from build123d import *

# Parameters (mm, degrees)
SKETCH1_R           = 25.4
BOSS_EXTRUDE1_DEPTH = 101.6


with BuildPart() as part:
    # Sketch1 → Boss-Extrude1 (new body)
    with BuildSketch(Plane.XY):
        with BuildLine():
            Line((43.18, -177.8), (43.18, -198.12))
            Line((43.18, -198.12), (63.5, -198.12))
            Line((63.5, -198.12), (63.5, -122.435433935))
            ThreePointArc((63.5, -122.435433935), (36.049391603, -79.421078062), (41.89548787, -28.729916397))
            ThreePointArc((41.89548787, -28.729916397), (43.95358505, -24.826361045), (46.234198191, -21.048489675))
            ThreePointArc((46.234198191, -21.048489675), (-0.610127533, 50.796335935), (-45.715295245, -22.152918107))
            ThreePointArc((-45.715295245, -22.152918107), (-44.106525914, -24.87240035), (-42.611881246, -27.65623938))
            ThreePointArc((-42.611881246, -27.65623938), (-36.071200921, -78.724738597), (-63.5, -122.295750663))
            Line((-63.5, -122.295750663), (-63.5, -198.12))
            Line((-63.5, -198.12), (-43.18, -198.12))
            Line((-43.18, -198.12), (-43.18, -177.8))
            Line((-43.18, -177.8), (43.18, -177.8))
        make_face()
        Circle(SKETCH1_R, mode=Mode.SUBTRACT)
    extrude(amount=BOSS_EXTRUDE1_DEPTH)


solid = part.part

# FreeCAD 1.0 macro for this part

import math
import FreeCAD as App
import Part
import Sketcher

V = App.Vector
Q = App.Units.Quantity

doc = App.newDocument("Part")
params = doc.addObject("Spreadsheet::Sheet", "Params")
for row, (alias, value) in enumerate([
    ("sketch1_diameter", "2 in"),
    ("sketch1_radius", "3 in"),
    ("sketch1_radius2", "2 in"),
    ("sketch1_width", "0.8 in"),
    ("sketch1_width2", "3.4 in"),
    ("pad1_length", "4 in"),
], start=1):
    params.set(f"A{row}", alias)
    params.set(f"B{row}", "=" + value)
    params.setAlias(f"B{row}", alias)

body = doc.addObject("PartDesign::Body", "Body")

sketch1 = body.newObject("Sketcher::SketchObject", "Sketch")
sketch1.AttachmentSupport = (doc.getObject("XY_Plane"), [""])
sketch1.MapMode = "FlatFace"
sketch1.addGeometry([
    Part.LineSegment(V(43, -178, 0), V(43, -198, 0)),
    Part.LineSegment(V(43, -198, 0), V(64, -198, 0)),
    Part.LineSegment(V(64, -198, 0), V(64, -122, 0)),
    Part.ArcOfCircle(Part.Circle(V(110, -62, 0), V(0, 0, 1), 76), math.radians(154), math.radians(232)),
    Part.ArcOfCircle(Part.Circle(V(110, -62, 0), V(0, 0, 1), 76), math.radians(147.22), math.radians(153.86)),
    Part.ArcOfCircle(Part.Circle(V(0, 0, 0), V(0, 0, 1), 51), math.radians(-24), math.radians(206)),
    Part.ArcOfCircle(Part.Circle(V(-110, -62, 0), V(0, 0, 1), 76), math.radians(27.04), math.radians(31.8)),
    Part.ArcOfCircle(Part.Circle(V(-110, -62, 0), V(0, 0, 1), 76), math.radians(-52), math.radians(27)),
    Part.LineSegment(V(-64, -122, 0), V(-64, -198, 0)),
    Part.LineSegment(V(-64, -198, 0), V(-43, -198, 0)),
    Part.LineSegment(V(-43, -198, 0), V(-43, -178, 0)),
    Part.LineSegment(V(-43, -178, 0), V(43, -178, 0)),
    Part.Circle(V(0, 0, 0), V(0, 0, 1), 25),
], False)
sketch1.addConstraint([
    Sketcher.Constraint("Coincident", 0, 2, 1, 1),
    Sketcher.Constraint("Coincident", 1, 2, 2, 1),
    Sketcher.Constraint("Coincident", 2, 2, 3, 2),
    Sketcher.Constraint("Tangent", 3, 1, 4, 2),
    Sketcher.Constraint("Coincident", 4, 1, 5, 1),
    Sketcher.Constraint("Coincident", 5, 2, 6, 2),
    Sketcher.Constraint("Tangent", 6, 1, 7, 2),
    Sketcher.Constraint("Coincident", 7, 1, 8, 1),
    Sketcher.Constraint("Coincident", 8, 2, 9, 1),
    Sketcher.Constraint("Coincident", 9, 2, 10, 1),
    Sketcher.Constraint("Coincident", 10, 2, 11, 1),
    Sketcher.Constraint("Coincident", 11, 2, 0, 1),
    Sketcher.Constraint("Vertical", 0),
    Sketcher.Constraint("Horizontal", 1),
    Sketcher.Constraint("Vertical", 2),
    Sketcher.Constraint("Vertical", 8),
    Sketcher.Constraint("Horizontal", 9),
    Sketcher.Constraint("Vertical", 10),
    Sketcher.Constraint("Horizontal", 11),
    Sketcher.Constraint("Coincident", 5, 3, -1, 1),
    Sketcher.Constraint("Coincident", 12, 3, -1, 1),
    Sketcher.Constraint("Equal", 3, 4),
    Sketcher.Constraint("Equal", 4, 6),
    Sketcher.Constraint("Equal", 6, 7),
    Sketcher.Constraint("Symmetric", 1, 2, 8, 2, -2),
    Sketcher.Constraint("Horizontal", 4, 3, 6, 3),
    Sketcher.Constraint("Equal", 1, 9),
    Sketcher.Constraint("Equal", 9, 0),
    Sketcher.Constraint("Diameter", 12, Q("2 in")),
    Sketcher.Constraint("Radius", 3, Q("3 in")),
    Sketcher.Constraint("Radius", 5, Q("2 in")),
    Sketcher.Constraint("DistanceX", 1, 1, 1, 2, Q("0.8 in")),
    Sketcher.Constraint("DistanceX", 11, 1, 11, 2, Q("3.4 in")),
    Sketcher.Constraint("DistanceY", 10, 2, -1, 1, Q("7 in")),
    Sketcher.Constraint("DistanceY", 8, 2, 8, 1, 75.824249),
    Sketcher.Constraint("DistanceX", -1, 1, 4, 1, 46.234198),
    Sketcher.Constraint("DistanceY", 3, 1, 5, 2, 6.576998),
    Sketcher.Constraint("DistanceY", 2, 1, 2, 2, 75.684566),
    Sketcher.Constraint("DistanceX", 6, 1, -1, 1, 42.611881),
])
sketch1.setExpression("Constraints[28]", "Params.sketch1_diameter")
sketch1.setExpression("Constraints[29]", "Params.sketch1_radius")
sketch1.setExpression("Constraints[30]", "Params.sketch1_radius2")
sketch1.setExpression("Constraints[31]", "Params.sketch1_width")
sketch1.setExpression("Constraints[32]", "Params.sketch1_width2")
pad1 = body.newObject("PartDesign::Pad", "Pad")
pad1.Profile = sketch1
pad1.setExpression("Length", "Params.pad1_length")

doc.recompute()
